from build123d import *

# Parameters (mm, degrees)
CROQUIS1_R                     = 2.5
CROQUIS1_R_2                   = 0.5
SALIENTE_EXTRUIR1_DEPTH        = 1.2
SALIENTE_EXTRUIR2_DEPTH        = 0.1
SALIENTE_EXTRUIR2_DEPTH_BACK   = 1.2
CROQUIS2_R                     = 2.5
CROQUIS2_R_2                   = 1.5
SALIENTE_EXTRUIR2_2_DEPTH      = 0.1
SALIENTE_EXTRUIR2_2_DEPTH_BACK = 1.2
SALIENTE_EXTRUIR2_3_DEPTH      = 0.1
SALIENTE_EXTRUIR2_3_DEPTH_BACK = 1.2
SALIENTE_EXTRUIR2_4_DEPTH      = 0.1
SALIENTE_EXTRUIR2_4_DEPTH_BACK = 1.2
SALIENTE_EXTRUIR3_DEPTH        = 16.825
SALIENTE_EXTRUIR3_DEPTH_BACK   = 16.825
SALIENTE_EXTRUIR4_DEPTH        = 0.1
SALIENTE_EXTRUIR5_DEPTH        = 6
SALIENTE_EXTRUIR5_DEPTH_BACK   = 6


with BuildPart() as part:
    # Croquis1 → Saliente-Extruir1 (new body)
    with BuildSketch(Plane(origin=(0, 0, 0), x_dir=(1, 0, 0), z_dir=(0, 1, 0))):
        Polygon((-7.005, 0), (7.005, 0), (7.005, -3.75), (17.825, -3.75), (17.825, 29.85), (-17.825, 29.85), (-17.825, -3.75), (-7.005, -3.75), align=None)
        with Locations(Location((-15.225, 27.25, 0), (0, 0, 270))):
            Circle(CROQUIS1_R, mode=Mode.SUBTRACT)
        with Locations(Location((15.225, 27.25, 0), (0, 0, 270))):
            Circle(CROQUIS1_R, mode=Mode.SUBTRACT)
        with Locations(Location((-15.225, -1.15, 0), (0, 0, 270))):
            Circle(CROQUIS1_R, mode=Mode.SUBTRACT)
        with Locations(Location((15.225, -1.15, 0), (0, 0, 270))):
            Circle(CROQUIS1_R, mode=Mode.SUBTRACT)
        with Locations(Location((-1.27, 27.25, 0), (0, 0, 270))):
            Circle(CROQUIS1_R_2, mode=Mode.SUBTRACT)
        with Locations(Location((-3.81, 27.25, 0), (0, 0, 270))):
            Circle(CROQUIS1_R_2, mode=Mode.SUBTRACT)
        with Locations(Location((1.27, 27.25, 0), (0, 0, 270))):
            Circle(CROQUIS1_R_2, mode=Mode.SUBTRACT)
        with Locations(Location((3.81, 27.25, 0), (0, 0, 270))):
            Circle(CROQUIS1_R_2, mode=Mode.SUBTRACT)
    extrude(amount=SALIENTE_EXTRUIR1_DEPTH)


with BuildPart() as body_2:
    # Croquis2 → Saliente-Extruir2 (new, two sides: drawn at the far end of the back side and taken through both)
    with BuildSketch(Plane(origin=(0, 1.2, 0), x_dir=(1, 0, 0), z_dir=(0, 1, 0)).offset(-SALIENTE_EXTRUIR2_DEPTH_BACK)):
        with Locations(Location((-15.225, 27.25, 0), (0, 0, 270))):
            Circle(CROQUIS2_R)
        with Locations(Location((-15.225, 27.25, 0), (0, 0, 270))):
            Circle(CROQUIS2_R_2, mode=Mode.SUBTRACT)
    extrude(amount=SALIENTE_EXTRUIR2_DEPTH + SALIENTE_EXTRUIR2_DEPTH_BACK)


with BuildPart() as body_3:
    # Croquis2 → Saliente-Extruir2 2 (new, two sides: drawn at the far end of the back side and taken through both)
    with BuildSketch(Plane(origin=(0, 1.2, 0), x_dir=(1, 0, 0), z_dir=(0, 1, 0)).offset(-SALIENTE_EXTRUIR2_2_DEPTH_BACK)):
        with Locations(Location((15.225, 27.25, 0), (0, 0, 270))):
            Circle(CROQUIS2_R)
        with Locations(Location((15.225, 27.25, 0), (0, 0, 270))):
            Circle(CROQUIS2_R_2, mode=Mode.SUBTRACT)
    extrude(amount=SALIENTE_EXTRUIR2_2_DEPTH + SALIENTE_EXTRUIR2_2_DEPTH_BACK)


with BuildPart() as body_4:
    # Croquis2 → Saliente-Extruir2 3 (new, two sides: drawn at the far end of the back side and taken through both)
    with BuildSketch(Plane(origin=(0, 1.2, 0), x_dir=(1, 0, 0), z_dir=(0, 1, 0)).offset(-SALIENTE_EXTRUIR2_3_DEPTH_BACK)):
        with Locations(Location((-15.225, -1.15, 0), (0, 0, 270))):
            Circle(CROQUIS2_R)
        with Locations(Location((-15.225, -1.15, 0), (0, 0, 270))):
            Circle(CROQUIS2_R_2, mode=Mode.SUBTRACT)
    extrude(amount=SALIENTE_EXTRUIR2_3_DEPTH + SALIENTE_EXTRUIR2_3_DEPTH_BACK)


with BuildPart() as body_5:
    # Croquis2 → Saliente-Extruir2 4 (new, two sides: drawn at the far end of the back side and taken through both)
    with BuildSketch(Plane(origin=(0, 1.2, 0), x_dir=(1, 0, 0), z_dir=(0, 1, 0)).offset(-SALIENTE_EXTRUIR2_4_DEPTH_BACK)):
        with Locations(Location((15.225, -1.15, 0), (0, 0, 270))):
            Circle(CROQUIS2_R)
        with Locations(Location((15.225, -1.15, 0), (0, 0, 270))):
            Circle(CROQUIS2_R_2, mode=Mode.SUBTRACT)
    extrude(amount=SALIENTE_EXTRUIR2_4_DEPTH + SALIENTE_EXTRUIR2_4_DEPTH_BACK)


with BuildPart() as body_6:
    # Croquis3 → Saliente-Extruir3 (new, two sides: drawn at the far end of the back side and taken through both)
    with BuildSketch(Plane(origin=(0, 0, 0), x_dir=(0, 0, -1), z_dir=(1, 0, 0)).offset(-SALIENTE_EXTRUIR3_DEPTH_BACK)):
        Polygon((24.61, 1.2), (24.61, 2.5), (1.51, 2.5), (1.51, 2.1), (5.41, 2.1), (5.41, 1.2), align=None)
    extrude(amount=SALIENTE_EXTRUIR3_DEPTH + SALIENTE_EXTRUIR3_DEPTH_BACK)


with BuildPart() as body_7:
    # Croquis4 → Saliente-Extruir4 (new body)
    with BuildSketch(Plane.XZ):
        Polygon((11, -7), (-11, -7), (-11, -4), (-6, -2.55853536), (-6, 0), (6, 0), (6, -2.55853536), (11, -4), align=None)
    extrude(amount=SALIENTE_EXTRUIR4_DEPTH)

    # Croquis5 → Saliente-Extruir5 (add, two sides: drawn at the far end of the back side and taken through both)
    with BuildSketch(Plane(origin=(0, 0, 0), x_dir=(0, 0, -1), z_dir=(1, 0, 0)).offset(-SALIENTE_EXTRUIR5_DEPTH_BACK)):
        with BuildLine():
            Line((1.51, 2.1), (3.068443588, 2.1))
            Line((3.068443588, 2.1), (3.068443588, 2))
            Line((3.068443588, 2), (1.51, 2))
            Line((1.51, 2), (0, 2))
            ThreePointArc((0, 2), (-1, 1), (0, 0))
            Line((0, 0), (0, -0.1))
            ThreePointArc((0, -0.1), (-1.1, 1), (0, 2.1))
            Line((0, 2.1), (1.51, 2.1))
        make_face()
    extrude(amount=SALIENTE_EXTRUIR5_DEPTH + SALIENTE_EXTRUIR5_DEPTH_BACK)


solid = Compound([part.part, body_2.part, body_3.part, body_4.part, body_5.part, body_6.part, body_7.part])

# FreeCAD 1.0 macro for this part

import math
import FreeCAD as App
import Part
import Sketcher

V = App.Vector
Q = App.Units.Quantity

doc = App.newDocument("Part")
body = doc.addObject("PartDesign::Body", "Body")

sketch1 = body.newObject("Sketcher::SketchObject", "Sketch")
sketch1.AttachmentSupport = (doc.getObject("XZ_Plane"), [""])
sketch1.MapMode = "FlatFace"
sketch1.addGeometry([
    Part.LineSegment(V(-7, 0, 0), V(7, 0, 0)),
    Part.LineSegment(V(7, 0, 0), V(7, 3.8, 0)),
    Part.LineSegment(V(7, 3.8, 0), V(17.8, 3.8, 0)),
    Part.LineSegment(V(17.8, 3.8, 0), V(17.8, -29.9, 0)),
    Part.LineSegment(V(17.8, -29.9, 0), V(-17.8, -29.9, 0)),
    Part.LineSegment(V(-17.8, -29.9, 0), V(-17.8, 3.8, 0)),
    Part.LineSegment(V(-17.8, 3.8, 0), V(-7, 3.8, 0)),
    Part.LineSegment(V(-7, 3.8, 0), V(-7, 0, 0)),
    Part.Circle(V(-15.2, 1.1, 0), V(0, 0, 1), 2.5),
    Part.Circle(V(15.2, 1.1, 0), V(0, 0, 1), 2.5),
    Part.Circle(V(-15.2, -27.2, 0), V(0, 0, 1), 2.5),
    Part.Circle(V(-3.8, -27.2, 0), V(0, 0, 1), 0.5),
    Part.Circle(V(-1.3, -27.2, 0), V(0, 0, 1), 0.5),
    Part.Circle(V(1.3, -27.2, 0), V(0, 0, 1), 0.5),
    Part.Circle(V(3.8, -27.2, 0), V(0, 0, 1), 0.5),
    Part.Circle(V(15.2, -27.2, 0), V(0, 0, 1), 2.5),
], False)
sketch1.addConstraint([
    Sketcher.Constraint("Coincident", 0, 2, 1, 1),
    Sketcher.Constraint("Coincident", 1, 2, 2, 1),
    Sketcher.Constraint("Coincident", 2, 2, 3, 1),
    Sketcher.Constraint("Coincident", 3, 2, 4, 1),
    Sketcher.Constraint("Coincident", 4, 2, 5, 1),
    Sketcher.Constraint("Coincident", 5, 2, 6, 1),
    Sketcher.Constraint("Coincident", 6, 2, 7, 1),
    Sketcher.Constraint("Coincident", 7, 2, 0, 1),
    Sketcher.Constraint("Horizontal", 0),
    Sketcher.Constraint("Vertical", 1),
    Sketcher.Constraint("Horizontal", 2),
    Sketcher.Constraint("Vertical", 3),
    Sketcher.Constraint("Horizontal", 4),
    Sketcher.Constraint("Vertical", 5),
    Sketcher.Constraint("Horizontal", 6),
    Sketcher.Constraint("Vertical", 7),
    Sketcher.Constraint("Equal", 8, 9),
    Sketcher.Constraint("Equal", 9, 10),
    Sketcher.Constraint("Equal", 11, 12),
    Sketcher.Constraint("Equal", 12, 13),
    Sketcher.Constraint("Equal", 13, 14),
    Sketcher.Constraint("Equal", 10, 15),
    Sketcher.Constraint("Symmetric", 0, 2, 7, 2, -1, 1),
    Sketcher.Constraint("Symmetric", 8, 3, 9, 3, -2),
    Sketcher.Constraint("Symmetric", 12, 3, 13, 3, -2),
    Sketcher.Constraint("Symmetric", 11, 3, 14, 3, -2),
    Sketcher.Constraint("Symmetric", 10, 3, 15, 3, -2),
    Sketcher.Constraint("Symmetric", 2, 2, 5, 2, -2),
    Sketcher.Constraint("Horizontal", 10, 3, 11, 3),
    Sketcher.Constraint("Horizontal", 11, 3, 12, 3),
    Sketcher.Constraint("Vertical", 8, 3, 10, 3),
    Sketcher.Constraint("Diameter", 8, Q("5 mm")),
    Sketcher.Constraint("Diameter", 11, Q("1 mm")),
    Sketcher.Constraint("DistanceY", 3, 2, 3, 1, Q("33.6 mm")),
    Sketcher.Constraint("DistanceY", 14, 3, 1, 2, Q("31 mm")),
    Sketcher.Constraint("DistanceX", 0, 1, 0, 2, Q("14.01 mm")),
    Sketcher.Constraint("DistanceX", 2, 1, 2, 2, Q("10.82 mm")),
    Sketcher.Constraint("DistanceY", 1, 1, 1, 2, Q("3.75 mm")),
    Sketcher.Constraint("DistanceY", 10, 3, 8, 3, Q("28.4 mm")),
    Sketcher.Constraint("DistanceX", 9, 3, 2, 2, Q("2.6 mm")),
    Sketcher.Constraint("DistanceX", 11, 3, -1, 1, Q("3.81 mm")),
    Sketcher.Constraint("DistanceX", 12, 3, -1, 1, Q("1.27 mm")),
])
pad1 = body.newObject("PartDesign::Pad", "Pad")
pad1.Profile = sketch1
pad1.Length = 1.2
pad1.Reversed = True
body2 = doc.addObject("PartDesign::Body", "Body001")

sketch2 = body2.newObject("Sketcher::SketchObject", "Sketch001")
sketch2.AttachmentSupport = (doc.getObject("XZ_Plane001"), [""])
sketch2.MapMode = "FlatFace"
sketch2.AttachmentOffset = App.Placement(V(0, 0, -1.2), App.Rotation())
sketch2.addGeometry([
    Part.Circle(V(-15.2, -27.2, 0), V(0, 0, 1), 2.5),
    Part.Circle(V(-15.2, -27.2, 0), V(0, 0, 1), 1.5),
], False)
sketch2.addConstraint([
    Sketcher.Constraint("Coincident", 1, 3, 0, 3),
    Sketcher.Constraint("Diameter", 0, Q("5 mm")),
    Sketcher.Constraint("Diameter", 1, Q("3 mm")),
    Sketcher.Constraint("DistanceY", 0, 3, -1, 1, Q("27.25 mm")),
    Sketcher.Constraint("DistanceX", 0, 3, -1, 1, Q("15.225 mm")),
])
pad2 = body2.newObject("PartDesign::Pad", "Pad001")
pad2.Profile = sketch2
pad2.Type = "TwoLengths"
pad2.Length = 0.1
pad2.Length2 = 1.2
pad2.Reversed = True
body3 = doc.addObject("PartDesign::Body", "Body002")

sketch3 = body3.newObject("Sketcher::SketchObject", "Sketch002")
sketch3.AttachmentSupport = (doc.getObject("XZ_Plane002"), [""])
sketch3.MapMode = "FlatFace"
sketch3.AttachmentOffset = App.Placement(V(0, 0, -1.2), App.Rotation())
sketch3.addGeometry([
    Part.Circle(V(15.2, -27.2, 0), V(0, 0, 1), 2.5),
    Part.Circle(V(15.2, -27.2, 0), V(0, 0, 1), 1.5),
], False)
sketch3.addConstraint([
    Sketcher.Constraint("Coincident", 1, 3, 0, 3),
    Sketcher.Constraint("Diameter", 0, Q("5 mm")),
    Sketcher.Constraint("Diameter", 1, Q("3 mm")),
    Sketcher.Constraint("DistanceY", 0, 3, -1, 1, Q("27.25 mm")),
    Sketcher.Constraint("DistanceX", -1, 1, 0, 3, Q("15.225 mm")),
])
pad3 = body3.newObject("PartDesign::Pad", "Pad002")
pad3.Profile = sketch3
pad3.Type = "TwoLengths"
pad3.Length = 0.1
pad3.Length2 = 1.2
pad3.Reversed = True
body4 = doc.addObject("PartDesign::Body", "Body003")

sketch4 = body4.newObject("Sketcher::SketchObject", "Sketch003")
sketch4.AttachmentSupport = (doc.getObject("XZ_Plane003"), [""])
sketch4.MapMode = "FlatFace"
sketch4.AttachmentOffset = App.Placement(V(0, 0, -1.2), App.Rotation())
sketch4.addGeometry([
    Part.Circle(V(-15.2, 1.1, 0), V(0, 0, 1), 2.5),
    Part.Circle(V(-15.2, 1.1, 0), V(0, 0, 1), 1.5),
], False)
sketch4.addConstraint([
    Sketcher.Constraint("Coincident", 1, 3, 0, 3),
    Sketcher.Constraint("Diameter", 0, Q("5 mm")),
    Sketcher.Constraint("Diameter", 1, Q("3 mm")),
    Sketcher.Constraint("DistanceY", -1, 1, 0, 3, Q("1.15 mm")),
    Sketcher.Constraint("DistanceX", 0, 3, -1, 1, Q("15.225 mm")),
])
pad4 = body4.newObject("PartDesign::Pad", "Pad003")
pad4.Profile = sketch4
pad4.Type = "TwoLengths"
pad4.Length = 0.1
pad4.Length2 = 1.2
pad4.Reversed = True
body5 = doc.addObject("PartDesign::Body", "Body004")

sketch5 = body5.newObject("Sketcher::SketchObject", "Sketch004")
sketch5.AttachmentSupport = (doc.getObject("XZ_Plane004"), [""])
sketch5.MapMode = "FlatFace"
sketch5.AttachmentOffset = App.Placement(V(0, 0, -1.2), App.Rotation())
sketch5.addGeometry([
    Part.Circle(V(15.2, 1.1, 0), V(0, 0, 1), 2.5),
    Part.Circle(V(15.2, 1.1, 0), V(0, 0, 1), 1.5),
], False)
sketch5.addConstraint([
    Sketcher.Constraint("Coincident", 1, 3, 0, 3),
    Sketcher.Constraint("Diameter", 0, Q("5 mm")),
    Sketcher.Constraint("Diameter", 1, Q("3 mm")),
    Sketcher.Constraint("DistanceY", -1, 1, 0, 3, Q("1.15 mm")),
    Sketcher.Constraint("DistanceX", -1, 1, 0, 3, Q("15.225 mm")),
])
pad5 = body5.newObject("PartDesign::Pad", "Pad004")
pad5.Profile = sketch5
pad5.Type = "TwoLengths"
pad5.Length = 0.1
pad5.Length2 = 1.2
pad5.Reversed = True
body6 = doc.addObject("PartDesign::Body", "Body005")

sketch6 = body6.newObject("Sketcher::SketchObject", "Sketch005")
sketch6.AttachmentSupport = (doc.getObject("YZ_Plane005"), [""])
sketch6.MapMode = "FlatFace"
sketch6.addGeometry([
    Part.LineSegment(V(1.2, -24.61, 0), V(2.5, -24.61, 0)),
    Part.LineSegment(V(2.5, -24.61, 0), V(2.5, -1.51, 0)),
    Part.LineSegment(V(2.5, -1.51, 0), V(2.1, -1.51, 0)),
    Part.LineSegment(V(2.1, -1.51, 0), V(2.1, -5.41, 0)),
    Part.LineSegment(V(2.1, -5.41, 0), V(1.2, -5.41, 0)),
    Part.LineSegment(V(1.2, -5.41, 0), V(1.2, -24.61, 0)),
], False)
sketch6.addConstraint([
    Sketcher.Constraint("Coincident", 0, 2, 1, 1),
    Sketcher.Constraint("Coincident", 1, 2, 2, 1),
    Sketcher.Constraint("Coincident", 2, 2, 3, 1),
    Sketcher.Constraint("Coincident", 3, 2, 4, 1),
    Sketcher.Constraint("Coincident", 4, 2, 5, 1),
    Sketcher.Constraint("Coincident", 5, 2, 0, 1),
    Sketcher.Constraint("Horizontal", 0),
    Sketcher.Constraint("Vertical", 1),
    Sketcher.Constraint("Horizontal", 2),
    Sketcher.Constraint("Vertical", 3),
    Sketcher.Constraint("Horizontal", 4),
    Sketcher.Constraint("Vertical", 5),
    Sketcher.Constraint("DistanceX", 0, 1, 0, 2, Q("1.3 mm")),
    Sketcher.Constraint("DistanceX", 2, 2, 2, 1, Q("0.4 mm")),
    Sketcher.Constraint("DistanceY", 1, 1, 1, 2, Q("23.1 mm")),
    Sketcher.Constraint("DistanceY", 3, 2, 3, 1, Q("3.9 mm")),
    Sketcher.Constraint("DistanceX", -1, 1, 0, 2, Q("2.5 mm")),
    Sketcher.Constraint("DistanceY", 0, 2, -1, 1, Q("24.61 mm")),
])
pad6 = body6.newObject("PartDesign::Pad", "Pad005")
pad6.Profile = sketch6
pad6.Type = "TwoLengths"
pad6.Length = 16.825
pad6.Length2 = 16.825
body7 = doc.addObject("PartDesign::Body", "Body006")

sketch7 = body7.newObject("Sketcher::SketchObject", "Sketch006")
sketch7.AttachmentSupport = (doc.getObject("XZ_Plane006"), [""])
sketch7.MapMode = "FlatFace"
sketch7.addGeometry([
    Part.LineSegment(V(-11, -7, 0), V(11, -7, 0)),
    Part.LineSegment(V(11, -7, 0), V(11, -4, 0)),
    Part.LineSegment(V(11, -4, 0), V(6, -2.6, 0)),
    Part.LineSegment(V(6, -2.6, 0), V(6, 0, 0)),
    Part.LineSegment(V(6, 0, 0), V(-6, 0, 0)),
    Part.LineSegment(V(-6, 0, 0), V(-6, -2.6, 0)),
    Part.LineSegment(V(-6, -2.6, 0), V(-11, -4, 0)),
    Part.LineSegment(V(-11, -4, 0), V(-11, -7, 0)),
], False)
sketch7.addConstraint([
    Sketcher.Constraint("Coincident", 0, 2, 1, 1),
    Sketcher.Constraint("Coincident", 1, 2, 2, 1),
    Sketcher.Constraint("Coincident", 2, 2, 3, 1),
    Sketcher.Constraint("Coincident", 3, 2, 4, 1),
    Sketcher.Constraint("Coincident", 4, 2, 5, 1),
    Sketcher.Constraint("Coincident", 5, 2, 6, 1),
    Sketcher.Constraint("Coincident", 6, 2, 7, 1),
    Sketcher.Constraint("Coincident", 7, 2, 0, 1),
    Sketcher.Constraint("Horizontal", 0),
    Sketcher.Constraint("Vertical", 1),
    Sketcher.Constraint("Vertical", 3),
    Sketcher.Constraint("Horizontal", 4),
    Sketcher.Constraint("Vertical", 5),
    Sketcher.Constraint("Vertical", 7),
    Sketcher.Constraint("Symmetric", 3, 2, 4, 2, -1, 1),
    Sketcher.Constraint("Symmetric", 1, 2, 6, 2, -2),
    Sketcher.Constraint("Horizontal", 2, 2, 5, 2),
    Sketcher.Constraint("DistanceX", 0, 1, 0, 2, Q("22 mm")),
    Sketcher.Constraint("DistanceX", 4, 2, 4, 1, Q("12 mm")),
    Sketcher.Constraint("DistanceY", 1, 1, 1, 2, Q("3 mm")),
    Sketcher.Constraint("DistanceY", 0, 2, -1, 1, Q("7 mm")),
    Sketcher.Constraint("DistanceY", 3, 1, 3, 2, Q("2.558535 mm")),
])
pad7 = body7.newObject("PartDesign::Pad", "Pad006")
pad7.Profile = sketch7
pad7.Length = 0.1

sketch8 = body7.newObject("Sketcher::SketchObject", "Sketch007")
sketch8.AttachmentSupport = (doc.getObject("YZ_Plane006"), [""])
sketch8.MapMode = "FlatFace"
sketch8.addGeometry([
    Part.LineSegment(V(2, -3.07, 0), V(2.1, -3.07, 0)),
    Part.LineSegment(V(2.1, -3.07, 0), V(2.1, 0, 0)),
    Part.ArcOfCircle(Part.Circle(V(1, 0, 0), V(0, 0, 1), 1.1), math.radians(0), math.radians(180)),
    Part.LineSegment(V(-0.1, 0, 0), V(0, 0, 0)),
    Part.ArcOfCircle(Part.Circle(V(1, 0, 0), V(0, 0, 1), 1), math.radians(0), math.radians(180)),
    Part.LineSegment(V(2, 0, 0), V(2, -3.07, 0)),
], False)
sketch8.addConstraint([
    Sketcher.Constraint("Coincident", 0, 2, 1, 1),
    Sketcher.Constraint("Tangent", 1, 2, 2, 1),
    Sketcher.Constraint("Coincident", 2, 2, 3, 1),
    Sketcher.Constraint("Coincident", 3, 2, 4, 2),
    Sketcher.Constraint("Tangent", 4, 1, 5, 1),
    Sketcher.Constraint("Coincident", 5, 2, 0, 1),
    Sketcher.Constraint("Horizontal", 0),
    Sketcher.Constraint("Vertical", 1),
    Sketcher.Constraint("Horizontal", 3),
    Sketcher.Constraint("Vertical", 5),
    Sketcher.Constraint("Coincident", 3, 2, -1, 1),
    Sketcher.Constraint("Coincident", 4, 3, 2, 3),
    Sketcher.Constraint("PointOnObject", 2, 3, -1),
    Sketcher.Constraint("Radius", 4, Q("1 mm")),
    Sketcher.Constraint("Radius", 2, Q("1.1 mm")),
    Sketcher.Constraint("DistanceY", 1, 1, 1, 2, Q("3.068444 mm")),
])
pad8 = body7.newObject("PartDesign::Pad", "Pad007")
pad8.Profile = sketch8
pad8.Type = "TwoLengths"
pad8.Length = 6
pad8.Length2 = 6

doc.recompute()
